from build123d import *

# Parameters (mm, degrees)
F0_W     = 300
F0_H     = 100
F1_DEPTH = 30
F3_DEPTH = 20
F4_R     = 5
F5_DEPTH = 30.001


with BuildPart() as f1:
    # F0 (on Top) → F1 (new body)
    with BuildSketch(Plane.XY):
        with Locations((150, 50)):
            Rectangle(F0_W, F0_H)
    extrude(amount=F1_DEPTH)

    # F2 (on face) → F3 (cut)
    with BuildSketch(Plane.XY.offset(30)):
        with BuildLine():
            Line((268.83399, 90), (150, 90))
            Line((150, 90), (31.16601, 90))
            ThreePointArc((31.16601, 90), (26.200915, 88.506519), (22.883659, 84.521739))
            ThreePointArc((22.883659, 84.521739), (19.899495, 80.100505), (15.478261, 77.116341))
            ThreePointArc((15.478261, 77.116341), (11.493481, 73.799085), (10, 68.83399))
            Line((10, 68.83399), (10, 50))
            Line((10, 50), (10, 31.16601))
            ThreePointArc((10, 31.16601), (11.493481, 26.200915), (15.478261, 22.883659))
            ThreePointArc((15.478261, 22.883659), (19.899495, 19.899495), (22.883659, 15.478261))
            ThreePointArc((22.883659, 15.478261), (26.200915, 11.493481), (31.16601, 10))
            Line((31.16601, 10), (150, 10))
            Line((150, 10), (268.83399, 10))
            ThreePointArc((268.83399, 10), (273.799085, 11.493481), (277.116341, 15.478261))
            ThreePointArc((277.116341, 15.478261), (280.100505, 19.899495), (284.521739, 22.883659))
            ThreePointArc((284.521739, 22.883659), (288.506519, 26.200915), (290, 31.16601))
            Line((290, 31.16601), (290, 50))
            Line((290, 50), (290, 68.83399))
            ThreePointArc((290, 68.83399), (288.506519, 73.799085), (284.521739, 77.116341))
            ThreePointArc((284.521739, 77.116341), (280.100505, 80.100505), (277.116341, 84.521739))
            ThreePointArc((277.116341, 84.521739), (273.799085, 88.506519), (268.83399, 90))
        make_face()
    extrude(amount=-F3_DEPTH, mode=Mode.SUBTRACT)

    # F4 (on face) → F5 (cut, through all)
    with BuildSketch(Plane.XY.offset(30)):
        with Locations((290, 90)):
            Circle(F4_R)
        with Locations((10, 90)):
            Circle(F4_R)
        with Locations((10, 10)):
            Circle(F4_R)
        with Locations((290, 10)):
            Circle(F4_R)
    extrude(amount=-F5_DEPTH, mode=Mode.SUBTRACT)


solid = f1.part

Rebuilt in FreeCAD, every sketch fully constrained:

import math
import FreeCAD as App
import Part
import Sketcher
Q = App.Units.Quantity


def add_polygon(sketch, points):
    """Adds a closed chain of lines whose ends are joined by coincident constraints."""
    first, n = sketch.GeometryCount, len(points)
    for a, b in zip(points, points[1:] + points[:1]):
        sketch.addGeometry(Part.LineSegment(App.Vector(*a, 0), App.Vector(*b, 0)), False)
    for i in range(n):
        sketch.addConstraint(Sketcher.Constraint("Coincident", first + i, 2, first + (i + 1) % n, 1))

doc = App.newDocument("Part")
body = doc.addObject("PartDesign::Body", "Body")

# Sketch on XY plane
sketch1 = body.newObject("Sketcher::SketchObject", "Sketch")
sketch1.AttachmentSupport = (doc.getObject("XY_Plane"), [""])
sketch1.MapMode = "FlatFace"
add_polygon(sketch1, [(0, 100), (0, 0), (300, 0), (300, 100)])  # lines 0-3
sketch1.addConstraint([
    Sketcher.Constraint("Vertical", 0),
    Sketcher.Constraint("Horizontal", 1),
    Sketcher.Constraint("Vertical", 2),
    Sketcher.Constraint("Horizontal", 3),
    Sketcher.Constraint("Coincident", 0, 2, -1, 1),
    Sketcher.Constraint("DistanceX", 1, 1, 1, 2, Q("300 mm")),
    Sketcher.Constraint("DistanceY", 0, 2, 0, 1, Q("100 mm")),
])
pad1 = body.newObject("PartDesign::Pad", "Pad")
pad1.Profile = sketch1
pad1.Length = 30

# Sketch on XY plane
sketch2 = body.newObject("Sketcher::SketchObject", "Sketch001")
sketch2.AttachmentSupport = (doc.getObject("XY_Plane"), [""])
sketch2.MapMode = "FlatFace"
sketch2.AttachmentOffset = App.Placement(App.Vector(0, 0, 30), App.Rotation())
sketch2.addGeometry([
    Part.LineSegment(App.Vector(269, 90, 0), App.Vector(31, 90, 0)),  # 0
    Part.ArcOfCircle(Part.Circle(App.Vector(31, 81, 0), App.Vector(0, 0, 1), 9), math.radians(90), math.radians(157)),  # 1
    Part.ArcOfCircle(Part.Circle(App.Vector(10, 90, 0), App.Vector(0, 0, 1), 14), math.radians(-67), math.radians(-23)),  # 2
    Part.ArcOfCircle(Part.Circle(App.Vector(19, 69, 0), App.Vector(0, 0, 1), 9), math.radians(113), math.radians(180)),  # 3
    Part.LineSegment(App.Vector(10, 69, 0), App.Vector(10, 31, 0)),  # 4
    Part.ArcOfCircle(Part.Circle(App.Vector(19, 31, 0), App.Vector(0, 0, 1), 9), math.radians(180), math.radians(247)),  # 5
    Part.ArcOfCircle(Part.Circle(App.Vector(10, 10, 0), App.Vector(0, 0, 1), 14), math.radians(23), math.radians(67)),  # 6
    Part.ArcOfCircle(Part.Circle(App.Vector(31, 19, 0), App.Vector(0, 0, 1), 9), math.radians(-157), math.radians(-90)),  # 7
    Part.LineSegment(App.Vector(31, 10, 0), App.Vector(269, 10, 0)),  # 8
    Part.ArcOfCircle(Part.Circle(App.Vector(269, 19, 0), App.Vector(0, 0, 1), 9), math.radians(-90), math.radians(-23)),  # 9
    Part.ArcOfCircle(Part.Circle(App.Vector(290, 10, 0), App.Vector(0, 0, 1), 14), math.radians(113), math.radians(157)),  # 10
    Part.ArcOfCircle(Part.Circle(App.Vector(281, 31, 0), App.Vector(0, 0, 1), 9), math.radians(-67), math.radians(0)),  # 11
    Part.LineSegment(App.Vector(290, 31, 0), App.Vector(290, 69, 0)),  # 12
    Part.ArcOfCircle(Part.Circle(App.Vector(281, 69, 0), App.Vector(0, 0, 1), 9), math.radians(0), math.radians(67)),  # 13
    Part.ArcOfCircle(Part.Circle(App.Vector(290, 90, 0), App.Vector(0, 0, 1), 14), math.radians(-157), math.radians(-113)),  # 14
    Part.ArcOfCircle(Part.Circle(App.Vector(269, 81, 0), App.Vector(0, 0, 1), 9), math.radians(23), math.radians(90)),  # 15
], False)
sketch2.addConstraint([
    Sketcher.Constraint("Tangent", 0, 2, 1, 1),
    Sketcher.Constraint("Tangent", 1, 2, 2, 2),
    Sketcher.Constraint("Tangent", 2, 1, 3, 1),
    Sketcher.Constraint("Tangent", 3, 2, 4, 1),
    Sketcher.Constraint("Tangent", 4, 2, 5, 1),
    Sketcher.Constraint("Tangent", 5, 2, 6, 2),
    Sketcher.Constraint("Tangent", 6, 1, 7, 1),
    Sketcher.Constraint("Tangent", 7, 2, 8, 1),
    Sketcher.Constraint("Tangent", 8, 2, 9, 1),
    Sketcher.Constraint("Tangent", 9, 2, 10, 2),
    Sketcher.Constraint("Tangent", 10, 1, 11, 1),
    Sketcher.Constraint("Tangent", 11, 2, 12, 1),
    Sketcher.Constraint("Tangent", 12, 2, 13, 1),
    Sketcher.Constraint("Tangent", 13, 2, 14, 2),
    Sketcher.Constraint("Tangent", 14, 1, 15, 1),
    Sketcher.Constraint("Tangent", 15, 2, 0, 1),
    Sketcher.Constraint("Horizontal", 0),
    Sketcher.Constraint("Vertical", 4),
    Sketcher.Constraint("Horizontal", 8),
    Sketcher.Constraint("Vertical", 12),
    Sketcher.Constraint("Equal", 1, 3),
    Sketcher.Constraint("Equal", 3, 5),
    Sketcher.Constraint("Equal", 2, 6),
    Sketcher.Constraint("Equal", 5, 7),
    Sketcher.Constraint("Equal", 7, 9),
    Sketcher.Constraint("Equal", 6, 10),
    Sketcher.Constraint("Equal", 9, 11),
    Sketcher.Constraint("Equal", 11, 13),
    Sketcher.Constraint("Equal", 10, 14),
    Sketcher.Constraint("Equal", 13, 15),
    Sketcher.Constraint("Horizontal", 6, 3, 10, 3),
    Sketcher.Constraint("Horizontal", 5, 3, 11, 3),
    Sketcher.Constraint("Horizontal", 3, 3, 13, 3),
    Sketcher.Constraint("Horizontal", 2, 3, 14, 3),
    Sketcher.Constraint("Vertical", 2, 3, 6, 3),
    Sketcher.Constraint("Vertical", 1, 3, 7, 3),
    Sketcher.Constraint("Radius", 1, Q("8.999998 mm")),
    Sketcher.Constraint("DistanceY", -1, 1, 1, 3, Q("81.000002 mm")),
    Sketcher.Constraint("DistanceX", -1, 1, 3, 3, Q("18.999998 mm")),
    Sketcher.Constraint("DistanceY", -1, 1, 7, 3, Q("18.999998 mm")),
    Sketcher.Constraint("DistanceX", -1, 1, 11, 3, Q("281.000002 mm")),
    Sketcher.Constraint("Radius", 2, Q("14.000005 mm")),
    Sketcher.Constraint("DistanceX", 0, 2, 0, 1, Q("237.66798 mm")),
    Sketcher.Constraint("DistanceY", 4, 2, 4, 1, Q("37.66798 mm")),
])
pocket1 = body.newObject("PartDesign::Pocket", "Pocket")
pocket1.Profile = sketch2
pocket1.Length = 20

# Sketch on XY plane
sketch3 = body.newObject("Sketcher::SketchObject", "Sketch002")
sketch3.AttachmentSupport = (doc.getObject("XY_Plane"), [""])
sketch3.MapMode = "FlatFace"
sketch3.AttachmentOffset = App.Placement(App.Vector(0, 0, 30), App.Rotation())
sketch3.addGeometry([
    Part.Circle(App.Vector(290, 90, 0), App.Vector(0, 0, 1), 5),
    Part.Circle(App.Vector(10, 90, 0), App.Vector(0, 0, 1), 5),
    Part.Circle(App.Vector(10, 10, 0), App.Vector(0, 0, 1), 5),
    Part.Circle(App.Vector(290, 10, 0), App.Vector(0, 0, 1), 5),
], False)
sketch3.addConstraint([
    Sketcher.Constraint("Equal", 0, 1),
    Sketcher.Constraint("Equal", 1, 2),
    Sketcher.Constraint("Equal", 2, 3),
    Sketcher.Constraint("Horizontal", 0, 3, 1, 3),
    Sketcher.Constraint("Horizontal", 2, 3, 3, 3),
    Sketcher.Constraint("Vertical", 1, 3, 2, 3),
    Sketcher.Constraint("Vertical", 0, 3, 3, 3),
    Sketcher.Constraint("Diameter", 0, Q("10 mm")),
    Sketcher.Constraint("DistanceX", -1, 1, 0, 3, Q("290 mm")),
    Sketcher.Constraint("DistanceY", -1, 1, 0, 3, Q("90 mm")),
    Sketcher.Constraint("DistanceX", -1, 1, 1, 3, Q("10 mm")),
    Sketcher.Constraint("DistanceY", -1, 1, 2, 3, Q("10 mm")),
])
pocket2 = body.newObject("PartDesign::Pocket", "Pocket001")
pocket2.Profile = sketch3
pocket2.Type = "ThroughAll"

doc.recompute()
